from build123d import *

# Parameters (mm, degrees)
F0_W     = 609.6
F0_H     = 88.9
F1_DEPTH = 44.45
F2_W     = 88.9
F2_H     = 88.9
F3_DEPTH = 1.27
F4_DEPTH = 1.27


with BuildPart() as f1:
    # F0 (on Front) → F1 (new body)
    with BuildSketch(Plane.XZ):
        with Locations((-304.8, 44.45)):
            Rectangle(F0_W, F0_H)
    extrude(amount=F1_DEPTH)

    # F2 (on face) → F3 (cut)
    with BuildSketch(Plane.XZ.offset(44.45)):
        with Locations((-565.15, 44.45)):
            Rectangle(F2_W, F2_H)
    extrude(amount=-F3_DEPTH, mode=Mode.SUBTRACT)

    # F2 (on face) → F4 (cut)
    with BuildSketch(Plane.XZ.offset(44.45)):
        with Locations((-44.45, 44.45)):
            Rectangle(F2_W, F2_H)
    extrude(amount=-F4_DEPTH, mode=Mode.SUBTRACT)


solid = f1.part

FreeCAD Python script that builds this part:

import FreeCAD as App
import Part
import Sketcher
Q = App.Units.Quantity

doc = App.newDocument("Part")
body = doc.addObject("PartDesign::Body", "Body")

sketch1 = doc.addObject("Sketcher::SketchObject", "Sketch")
body.addObject(sketch1)
sketch1.AttachmentSupport = (doc.XZ_Plane, [""])
sketch1.MapMode = "FlatFace"
sketch1.addGeometry(Part.LineSegment(App.Vector(-610, 89, 0), App.Vector(-610, 0, 0)), False)
sketch1.addGeometry(Part.LineSegment(App.Vector(-610, 0, 0), App.Vector(0, 0, 0)), False)
sketch1.addGeometry(Part.LineSegment(App.Vector(0, 0, 0), App.Vector(0, 89, 0)), False)
sketch1.addGeometry(Part.LineSegment(App.Vector(0, 89, 0), App.Vector(-610, 89, 0)), False)
sketch1.addConstraint(Sketcher.Constraint("Coincident", 0, 2, 1, 1))
sketch1.addConstraint(Sketcher.Constraint("Coincident", 1, 2, 2, 1))
sketch1.addConstraint(Sketcher.Constraint("Coincident", 2, 2, 3, 1))
sketch1.addConstraint(Sketcher.Constraint("Coincident", 3, 2, 0, 1))
sketch1.addConstraint(Sketcher.Constraint("Vertical", 0))
sketch1.addConstraint(Sketcher.Constraint("Horizontal", 1))
sketch1.addConstraint(Sketcher.Constraint("Vertical", 2))
sketch1.addConstraint(Sketcher.Constraint("Horizontal", 3))
sketch1.addConstraint(Sketcher.Constraint("Coincident", 1, 2, -1, 1))
sketch1.addConstraint(Sketcher.Constraint("DistanceX", 1, 1, 1, 2, Q("24 in")))
sketch1.addConstraint(Sketcher.Constraint("DistanceY", 0, 2, 0, 1, Q("3.5 in")))
pad1 = doc.addObject("PartDesign::Pad", "Pad")
body.addObject(pad1)
pad1.Profile = sketch1
pad1.Length = Q("1.75 in")

sketch2 = doc.addObject("Sketcher::SketchObject", "Sketch001")
body.addObject(sketch2)
sketch2.AttachmentSupport = (doc.XZ_Plane, [""])
sketch2.MapMode = "FlatFace"
sketch2.AttachmentOffset = App.Placement(App.Vector(0, 0, 1.75 * 25.4), App.Rotation())
sketch2.addGeometry(Part.LineSegment(App.Vector(-610, 89, 0), App.Vector(-610, 0, 0)), False)
sketch2.addGeometry(Part.LineSegment(App.Vector(-610, 0, 0), App.Vector(-521, 0, 0)), False)
sketch2.addGeometry(Part.LineSegment(App.Vector(-521, 0, 0), App.Vector(-521, 89, 0)), False)
sketch2.addGeometry(Part.LineSegment(App.Vector(-521, 89, 0), App.Vector(-610, 89, 0)), False)
sketch2.addConstraint(Sketcher.Constraint("Coincident", 0, 2, 1, 1))
sketch2.addConstraint(Sketcher.Constraint("Coincident", 1, 2, 2, 1))
sketch2.addConstraint(Sketcher.Constraint("Coincident", 2, 2, 3, 1))
sketch2.addConstraint(Sketcher.Constraint("Coincident", 3, 2, 0, 1))
sketch2.addConstraint(Sketcher.Constraint("Vertical", 0))
sketch2.addConstraint(Sketcher.Constraint("Horizontal", 1))
sketch2.addConstraint(Sketcher.Constraint("Vertical", 2))
sketch2.addConstraint(Sketcher.Constraint("Horizontal", 3))
sketch2.addConstraint(Sketcher.Constraint("PointOnObject", 0, 2, -1))
sketch2.addConstraint(Sketcher.Constraint("Equal", 3, 0))
sketch2.addConstraint(Sketcher.Constraint("DistanceX", 1, 1, 1, 2, Q("3.5 in")))
sketch2.addConstraint(Sketcher.Constraint("DistanceX", 0, 2, -1, 1, Q("24 in")))
pocket1 = doc.addObject("PartDesign::Pocket", "Pocket")
body.addObject(pocket1)
pocket1.Profile = sketch2
pocket1.Length = Q("0.05 in")

sketch3 = doc.addObject("Sketcher::SketchObject", "Sketch002")
body.addObject(sketch3)
sketch3.AttachmentSupport = (doc.XZ_Plane, [""])
sketch3.MapMode = "FlatFace"
sketch3.AttachmentOffset = App.Placement(App.Vector(0, 0, 1.75 * 25.4), App.Rotation())
sketch3.addGeometry(Part.LineSegment(App.Vector(-89, 89, 0), App.Vector(-89, 0, 0)), False)
sketch3.addGeometry(Part.LineSegment(App.Vector(-89, 0, 0), App.Vector(0, 0, 0)), False)
sketch3.addGeometry(Part.LineSegment(App.Vector(0, 0, 0), App.Vector(0, 89, 0)), False)
sketch3.addGeometry(Part.LineSegment(App.Vector(0, 89, 0), App.Vector(-89, 89, 0)), False)
sketch3.addConstraint(Sketcher.Constraint("Coincident", 0, 2, 1, 1))
sketch3.addConstraint(Sketcher.Constraint("Coincident", 1, 2, 2, 1))
sketch3.addConstraint(Sketcher.Constraint("Coincident", 2, 2, 3, 1))
sketch3.addConstraint(Sketcher.Constraint("Coincident", 3, 2, 0, 1))
sketch3.addConstraint(Sketcher.Constraint("Vertical", 0))
sketch3.addConstraint(Sketcher.Constraint("Horizontal", 1))
sketch3.addConstraint(Sketcher.Constraint("Vertical", 2))
sketch3.addConstraint(Sketcher.Constraint("Horizontal", 3))
sketch3.addConstraint(Sketcher.Constraint("Coincident", 1, 2, -1, 1))
sketch3.addConstraint(Sketcher.Constraint("Equal", 3, 0))
sketch3.addConstraint(Sketcher.Constraint("DistanceX", 1, 1, 1, 2, Q("3.5 in")))
pocket2 = doc.addObject("PartDesign::Pocket", "Pocket001")
body.addObject(pocket2)
pocket2.Profile = sketch3
pocket2.Length = Q("0.05 in")

doc.recompute()
